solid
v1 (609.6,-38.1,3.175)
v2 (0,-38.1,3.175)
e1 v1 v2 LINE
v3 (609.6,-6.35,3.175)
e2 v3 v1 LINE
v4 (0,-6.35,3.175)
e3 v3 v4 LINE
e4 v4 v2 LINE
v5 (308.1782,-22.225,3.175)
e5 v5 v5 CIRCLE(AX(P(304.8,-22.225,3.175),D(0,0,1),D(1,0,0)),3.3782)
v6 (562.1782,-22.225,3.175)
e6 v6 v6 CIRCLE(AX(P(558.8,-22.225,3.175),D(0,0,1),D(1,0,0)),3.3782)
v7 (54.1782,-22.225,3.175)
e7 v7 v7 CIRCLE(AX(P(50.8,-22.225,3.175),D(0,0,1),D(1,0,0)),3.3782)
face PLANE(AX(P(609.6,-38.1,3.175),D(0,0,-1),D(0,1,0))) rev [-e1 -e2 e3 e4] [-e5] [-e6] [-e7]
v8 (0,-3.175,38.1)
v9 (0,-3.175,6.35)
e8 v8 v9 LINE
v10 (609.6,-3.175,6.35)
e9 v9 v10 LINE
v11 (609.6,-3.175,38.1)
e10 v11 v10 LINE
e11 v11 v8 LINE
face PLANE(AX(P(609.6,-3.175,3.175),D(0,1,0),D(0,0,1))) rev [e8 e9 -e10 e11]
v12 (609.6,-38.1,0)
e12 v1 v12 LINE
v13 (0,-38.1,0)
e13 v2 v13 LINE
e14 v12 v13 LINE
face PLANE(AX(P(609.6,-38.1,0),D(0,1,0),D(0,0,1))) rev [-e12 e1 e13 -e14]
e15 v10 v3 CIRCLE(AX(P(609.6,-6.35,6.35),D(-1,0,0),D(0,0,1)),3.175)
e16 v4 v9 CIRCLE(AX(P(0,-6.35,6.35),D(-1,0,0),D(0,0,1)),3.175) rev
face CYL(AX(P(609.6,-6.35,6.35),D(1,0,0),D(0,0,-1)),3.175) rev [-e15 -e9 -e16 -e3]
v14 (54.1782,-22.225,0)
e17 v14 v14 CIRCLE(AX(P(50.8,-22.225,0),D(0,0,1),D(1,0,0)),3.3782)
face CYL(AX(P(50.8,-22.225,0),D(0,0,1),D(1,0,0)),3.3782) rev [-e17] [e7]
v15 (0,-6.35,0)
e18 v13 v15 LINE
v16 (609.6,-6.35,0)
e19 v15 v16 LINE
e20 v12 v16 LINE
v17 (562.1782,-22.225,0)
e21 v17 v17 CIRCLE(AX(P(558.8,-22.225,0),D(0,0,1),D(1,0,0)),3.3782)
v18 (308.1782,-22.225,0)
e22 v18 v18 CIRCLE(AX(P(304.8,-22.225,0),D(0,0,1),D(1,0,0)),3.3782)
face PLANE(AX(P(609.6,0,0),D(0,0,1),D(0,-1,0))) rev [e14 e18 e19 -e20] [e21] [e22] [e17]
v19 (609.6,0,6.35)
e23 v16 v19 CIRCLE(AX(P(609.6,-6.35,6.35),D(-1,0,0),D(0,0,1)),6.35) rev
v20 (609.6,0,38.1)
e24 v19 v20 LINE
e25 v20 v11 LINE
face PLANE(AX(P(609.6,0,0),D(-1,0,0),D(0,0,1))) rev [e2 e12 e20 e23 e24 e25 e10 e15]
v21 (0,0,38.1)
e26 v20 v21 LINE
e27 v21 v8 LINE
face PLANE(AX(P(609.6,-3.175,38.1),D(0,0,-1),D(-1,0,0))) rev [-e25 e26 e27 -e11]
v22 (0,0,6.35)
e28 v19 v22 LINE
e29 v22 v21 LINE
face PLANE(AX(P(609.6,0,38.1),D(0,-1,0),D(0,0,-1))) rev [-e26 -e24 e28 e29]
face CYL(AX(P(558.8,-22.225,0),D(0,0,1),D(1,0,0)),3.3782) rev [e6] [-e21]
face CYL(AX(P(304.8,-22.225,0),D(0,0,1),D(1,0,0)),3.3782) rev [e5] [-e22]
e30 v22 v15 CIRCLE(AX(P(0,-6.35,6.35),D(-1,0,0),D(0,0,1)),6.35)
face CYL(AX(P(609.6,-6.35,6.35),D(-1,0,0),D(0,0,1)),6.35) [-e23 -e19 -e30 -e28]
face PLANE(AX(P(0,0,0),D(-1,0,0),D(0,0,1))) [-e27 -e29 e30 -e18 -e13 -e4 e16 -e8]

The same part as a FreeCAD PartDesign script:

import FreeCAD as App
import Part
import Sketcher
from FreeCAD import Vector
Q = App.Units.Quantity


def edges_at(feature, points):
    """Names of the edges that pass closest to the given points."""
    edges = feature.Shape.Edges
    near = lambda p: min(range(len(edges)), key=lambda i: edges[i].distToShape(Part.Vertex(*p))[0])
    return sorted({f"Edge{near(p) + 1}" for p in points})


def add_polygon(sketch, points):
    """Adds a closed chain of lines whose ends are joined by coincident constraints."""
    first, n = sketch.GeometryCount, len(points)
    for a, b in zip(points, points[1:] + points[:1]):
        sketch.addGeometry(Part.LineSegment(App.Vector(*a, 0), App.Vector(*b, 0)), False)
    for i in range(n):
        sketch.addConstraint(Sketcher.Constraint("Coincident", first + i, 2, first + (i + 1) % n, 1))

doc = App.newDocument("Part")
params = doc.addObject("Spreadsheet::Sheet", "Params")
for row, (alias, value) in enumerate([
    ("sketch1_width", "1.5 in"),
    ("sketch1_width2", "0.125 in"),
    ("pad1_length", "24 in"),
    ("fillet_radius", "0.125 in"),
    ("fillet2_radius", "0.25 in"),
    ("sketch2_diameter", "0.266 in"),
], start=1):
    params.set(f"A{row}", alias)
    params.set(f"B{row}", "=" + value)
    params.setAlias(f"B{row}", alias)

body = doc.addObject("PartDesign::Body", "Body")

sketch1 = body.newObject("Sketcher::SketchObject", "Sketch")
sketch1.AttachmentSupport = (doc.getObject("YZ_Plane"), [""])
sketch1.MapMode = "FlatFace"
add_polygon(sketch1, [(0, 0), (0, 38.1), (-3.2, 38.1), (-3.2, 3.2), (-38.1, 3.2), (-38.1, 0)])
sketch1.addConstraint([
    Sketcher.Constraint("Vertical", 0),
    Sketcher.Constraint("Horizontal", 1),
    Sketcher.Constraint("Vertical", 2),
    Sketcher.Constraint("Horizontal", 3),
    Sketcher.Constraint("Vertical", 4),
    Sketcher.Constraint("Horizontal", 5),
    Sketcher.Constraint("Coincident", 5, 2, -1, 1),
    Sketcher.Constraint("Equal", 5, 0),
    Sketcher.Constraint("Equal", 3, 2),
    Sketcher.Constraint("DistanceX", 5, 1, 5, 2, Q("1.5 in")),
    Sketcher.Constraint("DistanceX", 1, 2, 1, 1, Q("0.125 in")),
])
sketch1.setExpression("Constraints[15]", "Params.sketch1_width")
sketch1.setExpression("Constraints[16]", "Params.sketch1_width2")
pad1 = body.newObject("PartDesign::Pad", "Pad")
pad1.Profile = sketch1
pad1.setExpression("Length", "Params.pad1_length")
doc.recompute()

fillet = body.newObject("PartDesign::Fillet", "Fillet")
fillet.Base = (pad1, edges_at(pad1, [(304.8, -3.175, 3.175)]))
fillet.setExpression("Radius", "Params.fillet_radius")
doc.recompute()

fillet2 = body.newObject("PartDesign::Fillet", "Fillet001")
fillet2.Base = (fillet, edges_at(fillet, [(304.8, 0, 0)]))
fillet2.setExpression("Radius", "Params.fillet2_radius")

sketch2 = body.newObject("Sketcher::SketchObject", "Sketch001")
sketch2.AttachmentSupport = (doc.getObject("XY_Plane"), [""])
sketch2.MapMode = "FlatFace"
sketch2.AttachmentOffset = App.Placement(Vector(0, 0, 0.125 * 25.4), App.Rotation())
sketch2.addGeometry([
    Part.Circle(Vector(304.8, -22.2, 0), Vector(0, 0, 1), 3.4),
    Part.Circle(Vector(558.8, -22.2, 0), Vector(0, 0, 1), 3.4),
    Part.Circle(Vector(50.8, -22.2, 0), Vector(0, 0, 1), 3.4),
], False)
sketch2.addConstraint([
    Sketcher.Constraint("Equal", 0, 1),
    Sketcher.Constraint("Equal", 1, 2),
    Sketcher.Constraint("Horizontal", 0, 3, 1, 3),
    Sketcher.Constraint("Horizontal", 1, 3, 2, 3),
    Sketcher.Constraint("Diameter", 0, Q("0.266 in")),
    Sketcher.Constraint("DistanceX", -1, 1, 0, 3, Q("12 in")),
    Sketcher.Constraint("DistanceX", -1, 1, 1, 3, Q("22 in")),
    Sketcher.Constraint("DistanceX", -1, 1, 2, 3, Q("2 in")),
    Sketcher.Constraint("DistanceY", 0, 3, -1, 1, Q("0.875 in")),
])
sketch2.setExpression("Constraints[4]", "Params.sketch2_diameter")
pocket1 = body.newObject("PartDesign::Pocket", "Pocket")
pocket1.Profile = sketch2
pocket1.Type = "ThroughAll"

doc.recompute()
